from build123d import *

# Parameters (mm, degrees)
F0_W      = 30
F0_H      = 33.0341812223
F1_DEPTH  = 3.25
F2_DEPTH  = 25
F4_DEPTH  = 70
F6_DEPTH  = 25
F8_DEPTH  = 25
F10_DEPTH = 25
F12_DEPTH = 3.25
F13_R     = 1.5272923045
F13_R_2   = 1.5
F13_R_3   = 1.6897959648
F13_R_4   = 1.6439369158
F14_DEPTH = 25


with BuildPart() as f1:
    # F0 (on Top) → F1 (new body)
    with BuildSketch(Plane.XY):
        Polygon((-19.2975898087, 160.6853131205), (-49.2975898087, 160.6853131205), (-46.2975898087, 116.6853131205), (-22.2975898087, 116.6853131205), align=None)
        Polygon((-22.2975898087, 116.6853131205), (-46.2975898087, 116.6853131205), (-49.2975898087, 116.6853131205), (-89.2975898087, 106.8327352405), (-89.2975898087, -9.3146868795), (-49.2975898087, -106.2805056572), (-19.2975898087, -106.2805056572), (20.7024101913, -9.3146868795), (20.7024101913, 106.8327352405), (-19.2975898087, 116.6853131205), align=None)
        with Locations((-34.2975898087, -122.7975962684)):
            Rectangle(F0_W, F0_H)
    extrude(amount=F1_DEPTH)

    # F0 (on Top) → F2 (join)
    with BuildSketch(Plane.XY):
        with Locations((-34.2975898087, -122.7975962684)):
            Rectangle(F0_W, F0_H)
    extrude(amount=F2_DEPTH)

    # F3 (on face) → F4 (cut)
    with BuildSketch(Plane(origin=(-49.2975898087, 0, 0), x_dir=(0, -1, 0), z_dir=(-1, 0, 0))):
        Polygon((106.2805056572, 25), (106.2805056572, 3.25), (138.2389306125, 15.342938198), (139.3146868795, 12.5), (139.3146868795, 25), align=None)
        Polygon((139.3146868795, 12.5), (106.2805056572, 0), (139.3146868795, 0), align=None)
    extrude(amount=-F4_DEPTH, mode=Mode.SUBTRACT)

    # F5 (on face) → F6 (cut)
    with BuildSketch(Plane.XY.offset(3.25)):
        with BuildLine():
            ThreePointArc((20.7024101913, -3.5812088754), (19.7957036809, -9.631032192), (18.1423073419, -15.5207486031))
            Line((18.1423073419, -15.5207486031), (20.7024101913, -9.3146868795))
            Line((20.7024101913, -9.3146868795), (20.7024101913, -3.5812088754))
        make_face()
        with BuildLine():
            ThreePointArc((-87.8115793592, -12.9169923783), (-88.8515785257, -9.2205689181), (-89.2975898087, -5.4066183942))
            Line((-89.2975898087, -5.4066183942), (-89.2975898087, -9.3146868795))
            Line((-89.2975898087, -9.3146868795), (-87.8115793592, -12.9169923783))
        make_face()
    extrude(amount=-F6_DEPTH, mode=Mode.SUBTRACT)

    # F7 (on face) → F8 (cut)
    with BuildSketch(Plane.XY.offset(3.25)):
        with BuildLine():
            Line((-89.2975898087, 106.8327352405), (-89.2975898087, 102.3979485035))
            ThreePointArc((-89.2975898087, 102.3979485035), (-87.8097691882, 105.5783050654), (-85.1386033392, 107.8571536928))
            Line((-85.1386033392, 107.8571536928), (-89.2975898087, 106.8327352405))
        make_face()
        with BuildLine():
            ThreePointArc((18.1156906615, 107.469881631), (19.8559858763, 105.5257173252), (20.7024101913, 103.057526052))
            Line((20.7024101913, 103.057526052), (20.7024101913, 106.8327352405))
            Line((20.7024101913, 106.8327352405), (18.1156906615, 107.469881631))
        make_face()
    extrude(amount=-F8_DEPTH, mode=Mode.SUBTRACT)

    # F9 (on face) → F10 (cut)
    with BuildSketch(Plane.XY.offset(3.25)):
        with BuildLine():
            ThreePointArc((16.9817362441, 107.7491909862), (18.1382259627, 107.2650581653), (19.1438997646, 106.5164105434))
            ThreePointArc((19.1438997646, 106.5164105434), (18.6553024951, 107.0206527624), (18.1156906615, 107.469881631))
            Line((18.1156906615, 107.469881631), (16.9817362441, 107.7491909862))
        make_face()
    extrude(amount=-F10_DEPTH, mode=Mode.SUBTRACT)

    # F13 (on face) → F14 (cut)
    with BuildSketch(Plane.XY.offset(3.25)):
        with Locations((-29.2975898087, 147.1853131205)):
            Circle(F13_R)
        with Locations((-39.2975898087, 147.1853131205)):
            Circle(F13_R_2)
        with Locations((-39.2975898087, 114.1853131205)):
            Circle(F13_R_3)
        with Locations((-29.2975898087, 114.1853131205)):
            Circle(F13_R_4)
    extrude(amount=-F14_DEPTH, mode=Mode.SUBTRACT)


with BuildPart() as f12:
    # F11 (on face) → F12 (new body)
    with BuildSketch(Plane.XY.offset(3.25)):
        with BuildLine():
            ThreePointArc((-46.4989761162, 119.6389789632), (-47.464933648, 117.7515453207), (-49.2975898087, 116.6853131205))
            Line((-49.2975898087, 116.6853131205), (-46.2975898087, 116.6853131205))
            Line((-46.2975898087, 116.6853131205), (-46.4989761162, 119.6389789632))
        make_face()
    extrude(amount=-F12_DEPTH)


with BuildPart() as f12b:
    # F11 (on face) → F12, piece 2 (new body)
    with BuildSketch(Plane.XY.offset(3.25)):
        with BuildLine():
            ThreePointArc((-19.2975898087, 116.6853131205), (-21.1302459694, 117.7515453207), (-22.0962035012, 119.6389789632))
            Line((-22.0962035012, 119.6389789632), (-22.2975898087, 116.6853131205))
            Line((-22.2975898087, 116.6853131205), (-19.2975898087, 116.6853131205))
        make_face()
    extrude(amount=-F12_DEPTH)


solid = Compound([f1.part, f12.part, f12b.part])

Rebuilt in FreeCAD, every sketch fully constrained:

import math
import FreeCAD as App
import Part
import Sketcher
from FreeCAD import Vector

doc = App.newDocument("Part")
body = doc.addObject("PartDesign::Body", "Body")

sketch1 = doc.addObject("Sketcher::SketchObject", "Sketch")
body.addObject(sketch1)
sketch1.AttachmentSupport = (doc.XY_Plane, [""])
sketch1.MapMode = "FlatFace"
sketch1.addGeometry([
    Part.LineSegment(Vector(-19.3, 160.7, 0), Vector(-49.3, 160.7, 0)),
    Part.LineSegment(Vector(-49.3, 160.7, 0), Vector(-46.3, 116.7, 0)),
    Part.LineSegment(Vector(-46.3, 116.7, 0), Vector(-49.3, 116.7, 0)),
    Part.LineSegment(Vector(-49.3, 116.7, 0), Vector(-89.3, 106.8, 0)),
    Part.LineSegment(Vector(-89.3, 106.8, 0), Vector(-89.3, -9.3, 0)),
    Part.LineSegment(Vector(-89.3, -9.3, 0), Vector(-49.3, -106.3, 0)),
    Part.LineSegment(Vector(-49.3, -106.3, 0), Vector(-49.3, -139.3, 0)),
    Part.LineSegment(Vector(-49.3, -139.3, 0), Vector(-19.3, -139.3, 0)),
    Part.LineSegment(Vector(-19.3, -139.3, 0), Vector(-19.3, -106.3, 0)),
    Part.LineSegment(Vector(-19.3, -106.3, 0), Vector(20.7, -9.3, 0)),
    Part.LineSegment(Vector(20.7, -9.3, 0), Vector(20.7, 106.8, 0)),
    Part.LineSegment(Vector(20.7, 106.8, 0), Vector(-19.3, 116.7, 0)),
    Part.LineSegment(Vector(-19.3, 116.7, 0), Vector(-22.3, 116.7, 0)),
    Part.LineSegment(Vector(-22.3, 116.7, 0), Vector(-19.3, 160.7, 0)),
], False)
sketch1.addConstraint([
    Sketcher.Constraint("Coincident", 0, 2, 1, 1),
    Sketcher.Constraint("Coincident", 1, 2, 2, 1),
    Sketcher.Constraint("Coincident", 2, 2, 3, 1),
    Sketcher.Constraint("Coincident", 3, 2, 4, 1),
    Sketcher.Constraint("Coincident", 4, 2, 5, 1),
    Sketcher.Constraint("Coincident", 5, 2, 6, 1),
    Sketcher.Constraint("Coincident", 6, 2, 7, 1),
    Sketcher.Constraint("Coincident", 7, 2, 8, 1),
    Sketcher.Constraint("Coincident", 8, 2, 9, 1),
    Sketcher.Constraint("Coincident", 9, 2, 10, 1),
    Sketcher.Constraint("Coincident", 10, 2, 11, 1),
    Sketcher.Constraint("Coincident", 11, 2, 12, 1),
    Sketcher.Constraint("Coincident", 12, 2, 13, 1),
    Sketcher.Constraint("Coincident", 13, 2, 0, 1),
    Sketcher.Constraint("Horizontal", 0),
    Sketcher.Constraint("Horizontal", 2),
    Sketcher.Constraint("Vertical", 4),
    Sketcher.Constraint("Vertical", 6),
    Sketcher.Constraint("Horizontal", 7),
    Sketcher.Constraint("Vertical", 8),
    Sketcher.Constraint("Vertical", 10),
    Sketcher.Constraint("Horizontal", 12),
    Sketcher.Constraint("Horizontal", 5, 2, 8, 2),
    Sketcher.Constraint("Horizontal", 4, 2, 9, 2),
    Sketcher.Constraint("Horizontal", 3, 2, 10, 2),
    Sketcher.Constraint("Horizontal", 2, 2, 11, 2),
    Sketcher.Constraint("Vertical", 0, 2, 2, 2),
    Sketcher.Constraint("Vertical", 2, 2, 5, 2),
    Sketcher.Constraint("Vertical", 8, 2, 11, 2),
    Sketcher.Constraint("Vertical", 11, 2, 13, 2),
    Sketcher.Constraint("Equal", 2, 12),
    Sketcher.Constraint("Equal", 5, 9),
    Sketcher.Constraint("DistanceX", 0, 2, 0, 1, 30.0),
    Sketcher.Constraint("DistanceX", 2, 2, 2, 1, 3.0),
    Sketcher.Constraint("DistanceY", 1, 2, 0, 2, 44.0),
    Sketcher.Constraint("DistanceX", 3, 2, 2, 2, 40.0),
    Sketcher.Constraint("DistanceY", 4, 2, 2, 2, 126.0),
    Sketcher.Constraint("DistanceY", 6, 2, 4, 2, 130.0),
    Sketcher.Constraint("DistanceY", 6, 2, 6, 1, 33.034181),
    Sketcher.Constraint("Distance", 3, 41.195549),
    Sketcher.Constraint("DistanceX", 0, 2, -1, 1, 49.29759),
    Sketcher.Constraint("DistanceY", -1, 1, 0, 2, 160.685313),
])
pad1 = doc.addObject("PartDesign::Pad", "Pad")
body.addObject(pad1)
pad1.Profile = sketch1
pad1.Length = 3.25

sketch2 = doc.addObject("Sketcher::SketchObject", "Sketch001")
body.addObject(sketch2)
sketch2.AttachmentSupport = (doc.XY_Plane, [""])
sketch2.MapMode = "FlatFace"
sketch2.addGeometry([
    Part.LineSegment(Vector(-49, -106, 0), Vector(-49, -139, 0)),
    Part.LineSegment(Vector(-49, -139, 0), Vector(-19, -139, 0)),
    Part.LineSegment(Vector(-19, -139, 0), Vector(-19, -106, 0)),
    Part.LineSegment(Vector(-19, -106, 0), Vector(-49, -106, 0)),
], False)
sketch2.addConstraint([
    Sketcher.Constraint("Coincident", 0, 2, 1, 1),
    Sketcher.Constraint("Coincident", 1, 2, 2, 1),
    Sketcher.Constraint("Coincident", 2, 2, 3, 1),
    Sketcher.Constraint("Coincident", 3, 2, 0, 1),
    Sketcher.Constraint("Vertical", 0),
    Sketcher.Constraint("Horizontal", 1),
    Sketcher.Constraint("Vertical", 2),
    Sketcher.Constraint("Horizontal", 3),
    Sketcher.Constraint("DistanceX", 1, 1, 1, 2, 30.0),
    Sketcher.Constraint("DistanceY", 0, 2, 0, 1, 33.034181),
    Sketcher.Constraint("DistanceX", 0, 2, -1, 1, 49.29759),
    Sketcher.Constraint("DistanceY", 0, 2, -1, 1, 139.314687),
])
pad2 = doc.addObject("PartDesign::Pad", "Pad001")
body.addObject(pad2)
pad2.Profile = sketch2
pad2.Length = 25

sketch3 = doc.addObject("Sketcher::SketchObject", "Sketch002")
body.addObject(sketch3)
sketch3.AttachmentSupport = (doc.YZ_Plane, [""])
sketch3.MapMode = "FlatFace"
sketch3.AttachmentOffset = App.Placement(Vector(0, 0, -49.29759), App.Rotation())
sketch3.addGeometry([
    Part.LineSegment(Vector(-106.3, 25, 0), Vector(-106.3, 3.2, 0)),
    Part.LineSegment(Vector(-106.3, 3.2, 0), Vector(-138.2, 15.3, 0)),
    Part.LineSegment(Vector(-138.2, 15.3, 0), Vector(-139.3, 12.5, 0)),
    Part.LineSegment(Vector(-139.3, 12.5, 0), Vector(-139.3, 25, 0)),
    Part.LineSegment(Vector(-139.3, 25, 0), Vector(-106.3, 25, 0)),
    Part.LineSegment(Vector(-139.3, 12.5, 0), Vector(-106.3, 0, 0)),
    Part.LineSegment(Vector(-106.3, 0, 0), Vector(-139.3, 0, 0)),
    Part.LineSegment(Vector(-139.3, 0, 0), Vector(-139.3, 12.5, 0)),
], False)
sketch3.addConstraint([
    Sketcher.Constraint("Coincident", 0, 2, 1, 1),
    Sketcher.Constraint("Coincident", 1, 2, 2, 1),
    Sketcher.Constraint("Coincident", 2, 2, 3, 1),
    Sketcher.Constraint("Coincident", 3, 2, 4, 1),
    Sketcher.Constraint("Coincident", 4, 2, 0, 1),
    Sketcher.Constraint("Coincident", 5, 2, 6, 1),
    Sketcher.Constraint("Coincident", 6, 2, 7, 1),
    Sketcher.Constraint("Coincident", 7, 2, 5, 1),
    Sketcher.Constraint("Vertical", 0),
    Sketcher.Constraint("Vertical", 3),
    Sketcher.Constraint("Horizontal", 4),
    Sketcher.Constraint("Horizontal", 6),
    Sketcher.Constraint("Vertical", 7),
    Sketcher.Constraint("Coincident", 7, 2, 2, 2),
    Sketcher.Constraint("PointOnObject", 5, 2, -1),
    Sketcher.Constraint("Perpendicular", 1, 2),
    Sketcher.Constraint("Perpendicular", 2, 5),
    Sketcher.Constraint("Vertical", 4, 2, 5, 2),
    Sketcher.Constraint("Equal", 3, 7),
    Sketcher.Constraint("DistanceY", 3, 1, 3, 2, 12.5),
    Sketcher.Constraint("DistanceY", 0, 2, 0, 1, 21.75),
    Sketcher.Constraint("DistanceX", 4, 1, 4, 2, 33.034181),
    Sketcher.Constraint("DistanceX", 1, 2, -1, 1, 138.238931),
])
pocket1 = doc.addObject("PartDesign::Pocket", "Pocket")
body.addObject(pocket1)
pocket1.Profile = sketch3
pocket1.Length = 70
pocket1.Reversed = True

sketch4 = doc.addObject("Sketcher::SketchObject", "Sketch003")
body.addObject(sketch4)
sketch4.AttachmentSupport = (doc.XY_Plane, [""])
sketch4.MapMode = "FlatFace"
sketch4.AttachmentOffset = App.Placement(Vector(0, 0, 3.25), App.Rotation())
sketch4.addGeometry([
    Part.ArcOfCircle(Part.Circle(Vector(-28.1, 0.6, 0), Vector(0, 0, 1), 49), math.radians(-19.26), math.radians(-4.95)),
    Part.LineSegment(Vector(18.1, -15.5, 0), Vector(20.7, -9.3, 0)),
    Part.LineSegment(Vector(20.7, -9.3, 0), Vector(20.7, -3.6, 0)),
    Part.ArcOfCircle(Part.Circle(Vector(-65, -4.5, 0), Vector(0, 0, 1), 24.4), math.radians(-177.85), math.radians(-159.76)),
    Part.LineSegment(Vector(-89.3, -5.4, 0), Vector(-89.3, -9.3, 0)),
    Part.LineSegment(Vector(-89.3, -9.3, 0), Vector(-87.8, -12.9, 0)),
], False)
sketch4.addConstraint([
    Sketcher.Constraint("Coincident", 0, 1, 1, 1),
    Sketcher.Constraint("Coincident", 1, 2, 2, 1),
    Sketcher.Constraint("Coincident", 2, 2, 0, 2),
    Sketcher.Constraint("Coincident", 3, 1, 4, 1),
    Sketcher.Constraint("Coincident", 4, 2, 5, 1),
    Sketcher.Constraint("Coincident", 5, 2, 3, 2),
    Sketcher.Constraint("Vertical", 2),
    Sketcher.Constraint("Vertical", 4),
    Sketcher.Constraint("Horizontal", 1, 2, 4, 2),
    Sketcher.Constraint("DistanceX", 3, 1, 2, 2, 110.0),
    Sketcher.Constraint("Radius", 0, 49.003971),
    Sketcher.Constraint("Radius", 3, 24.351883),
    Sketcher.Constraint("DistanceY", 2, 1, 2, 2, 5.733478),
    Sketcher.Constraint("DistanceY", 4, 2, 4, 1, 3.908068),
    Sketcher.Constraint("Distance", 1, 6.713369),
    Sketcher.Constraint("Distance", 5, 3.896772),
    Sketcher.Constraint("DistanceY", -1, 1, 0, 3, 0.642979),
    Sketcher.Constraint("DistanceY", 0, 1, -1, 1, 15.520749),
    Sketcher.Constraint("DistanceX", -1, 1, 1, 2, 20.70241),
    Sketcher.Constraint("DistanceX", 5, 2, -1, 1, 87.811579),
])
pocket2 = doc.addObject("PartDesign::Pocket", "Pocket001")
body.addObject(pocket2)
pocket2.Profile = sketch4
pocket2.Length = 25

sketch5 = doc.addObject("Sketcher::SketchObject", "Sketch004")
body.addObject(sketch5)
sketch5.AttachmentSupport = (doc.XY_Plane, [""])
sketch5.MapMode = "FlatFace"
sketch5.AttachmentOffset = App.Placement(Vector(0, 0, 3.25), App.Rotation())
sketch5.addGeometry([
    Part.LineSegment(Vector(-89.3, 106.8, 0), Vector(-89.3, 102.4, 0)),
    Part.ArcOfCircle(Part.Circle(Vector(-81.2, 100.6, 0), Vector(0, 0, 1), 8.3), math.radians(118), math.radians(167)),
    Part.LineSegment(Vector(-85.1, 107.9, 0), Vector(-89.3, 106.8, 0)),
    Part.ArcOfCircle(Part.Circle(Vector(14.2, 102.2, 0), Vector(0, 0, 1), 6.6), math.radians(7), math.radians(53)),
    Part.LineSegment(Vector(20.7, 103.1, 0), Vector(20.7, 106.8, 0)),
    Part.LineSegment(Vector(20.7, 106.8, 0), Vector(18.1, 107.5, 0)),
], False)
sketch5.addConstraint([
    Sketcher.Constraint("Coincident", 0, 2, 1, 2),
    Sketcher.Constraint("Coincident", 1, 1, 2, 1),
    Sketcher.Constraint("Coincident", 2, 2, 0, 1),
    Sketcher.Constraint("Coincident", 3, 1, 4, 1),
    Sketcher.Constraint("Coincident", 4, 2, 5, 1),
    Sketcher.Constraint("Coincident", 5, 2, 3, 2),
    Sketcher.Constraint("Vertical", 0),
    Sketcher.Constraint("Vertical", 4),
    Sketcher.Constraint("Horizontal", 2, 2, 4, 2),
    Sketcher.Constraint("DistanceX", 0, 2, 3, 1, 110.0),
    Sketcher.Constraint("Radius", 1, 8.287232),
    Sketcher.Constraint("Radius", 3, 6.570857),
    Sketcher.Constraint("DistanceX", 1, 1, 1, 3, 3.920999),
    Sketcher.Constraint("DistanceY", 4, 1, 4, 2, 3.775209),
    Sketcher.Constraint("DistanceY", 3, 3, 0, 2, 0.195401),
    Sketcher.Constraint("DistanceY", 0, 2, 0, 1, 4.434787),
    Sketcher.Constraint("DistanceX", 0, 2, -1, 1, 89.29759),
    Sketcher.Constraint("DistanceY", -1, 1, 0, 2, 102.397949),
    Sketcher.Constraint("DistanceX", -1, 1, 5, 2, 18.115691),
    Sketcher.Constraint("DistanceX", 1, 3, 3, 3, 95.405018),
])
pocket3 = doc.addObject("PartDesign::Pocket", "Pocket002")
body.addObject(pocket3)
pocket3.Profile = sketch5
pocket3.Length = 25

sketch6 = doc.addObject("Sketcher::SketchObject", "Sketch005")
body.addObject(sketch6)
sketch6.AttachmentSupport = (doc.XY_Plane, [""])
sketch6.MapMode = "FlatFace"
sketch6.AttachmentOffset = App.Placement(Vector(0, 0, 3.25), App.Rotation())
sketch6.addGeometry([
    Part.ArcOfCircle(Part.Circle(Vector(15.6, 102.8, 0), Vector(0, 0, 1), 5.2), math.radians(46), math.radians(74)),
    Part.ArcOfCircle(Part.Circle(Vector(14.2, 102.2, 0), Vector(0, 0, 1), 6.6), math.radians(41.03), math.radians(53.29)),
    Part.LineSegment(Vector(18.1, 107.5, 0), Vector(17, 107.7, 0)),
], False)
sketch6.addConstraint([
    Sketcher.Constraint("Coincident", 0, 1, 1, 1),
    Sketcher.Constraint("Coincident", 1, 2, 2, 1),
    Sketcher.Constraint("Coincident", 2, 2, 0, 2),
    Sketcher.Constraint("Radius", 0, 5.162266),
    Sketcher.Constraint("Radius", 1, 6.570857),
    Sketcher.Constraint("DistanceX", -1, 1, 0, 1, 19.1439),
    Sketcher.Constraint("DistanceX", 1, 3, 0, 3, 1.393899),
    Sketcher.Constraint("DistanceY", -1, 1, 0, 3, 102.780508),
    Sketcher.Constraint("DistanceY", -1, 1, 0, 1, 106.516411),
    Sketcher.Constraint("DistanceX", -1, 1, 1, 2, 18.115691),
    Sketcher.Constraint("DistanceY", -1, 1, 2, 2, 107.749191),
])
pocket4 = doc.addObject("PartDesign::Pocket", "Pocket003")
body.addObject(pocket4)
pocket4.Profile = sketch6
pocket4.Length = 25

sketch7 = doc.addObject("Sketcher::SketchObject", "Sketch006")
body.addObject(sketch7)
sketch7.AttachmentSupport = (doc.XY_Plane, [""])
sketch7.MapMode = "FlatFace"
sketch7.AttachmentOffset = App.Placement(Vector(0, 0, 3.25), App.Rotation())
sketch7.addGeometry([
    Part.Circle(Vector(-29.3, 147.2, 0), Vector(0, 0, 1), 1.5),
    Part.Circle(Vector(-39.3, 147.2, 0), Vector(0, 0, 1), 1.5),
    Part.Circle(Vector(-39.3, 114.2, 0), Vector(0, 0, 1), 1.7),
    Part.Circle(Vector(-29.3, 114.2, 0), Vector(0, 0, 1), 1.6),
], False)
sketch7.addConstraint([
    Sketcher.Constraint("Horizontal", 0, 3, 1, 3),
    Sketcher.Constraint("Horizontal", 2, 3, 3, 3),
    Sketcher.Constraint("Vertical", 1, 3, 2, 3),
    Sketcher.Constraint("Vertical", 0, 3, 3, 3),
    Sketcher.Constraint("Diameter", 1, 3.0),
    Sketcher.Constraint("DistanceX", 1, 3, 0, 3, 10.0),
    Sketcher.Constraint("DistanceY", 2, 3, 1, 3, 33.0),
    Sketcher.Constraint("Diameter", 2, 3.379592),
    Sketcher.Constraint("Diameter", 0, 3.054585),
    Sketcher.Constraint("Diameter", 3, 3.287874),
    Sketcher.Constraint("DistanceX", 0, 3, -1, 1, 29.29759),
    Sketcher.Constraint("DistanceY", -1, 1, 0, 3, 147.185313),
])
pocket5 = doc.addObject("PartDesign::Pocket", "Pocket004")
body.addObject(pocket5)
pocket5.Profile = sketch7
pocket5.Length = 25
body2 = doc.addObject("PartDesign::Body", "Body001")

sketch8 = doc.addObject("Sketcher::SketchObject", "Sketch007")
body2.addObject(sketch8)
sketch8.AttachmentSupport = (doc.getObject("XY_Plane001"), [""])
sketch8.MapMode = "FlatFace"
sketch8.AttachmentOffset = App.Placement(Vector(0, 0, 3.25), App.Rotation())
sketch8.addGeometry([
    Part.ArcOfCircle(Part.Circle(Vector(-50.2, 120.3, 0), Vector(0, 0, 1), 3.8), math.radians(-76), math.radians(-11)),
    Part.LineSegment(Vector(-49.3, 116.7, 0), Vector(-46.3, 116.7, 0)),
    Part.LineSegment(Vector(-46.3, 116.7, 0), Vector(-46.5, 119.6, 0)),
], False)
sketch8.addConstraint([
    Sketcher.Constraint("Coincident", 0, 1, 1, 1),
    Sketcher.Constraint("Coincident", 1, 2, 2, 1),
    Sketcher.Constraint("Coincident", 2, 2, 0, 2),
    Sketcher.Constraint("Horizontal", 1),
    Sketcher.Constraint("DistanceX", 1, 1, 1, 2, 3.0),
    Sketcher.Constraint("Radius", 0, 3.765187),
    Sketcher.Constraint("DistanceY", -1, 1, 0, 3, 120.34123),
    Sketcher.Constraint("DistanceX", 0, 1, -1, 1, 49.29759),
    Sketcher.Constraint("DistanceY", -1, 1, 2, 2, 119.638979),
    Sketcher.Constraint("Distance", 2, 2.960523),
])
pad3 = doc.addObject("PartDesign::Pad", "Pad002")
body2.addObject(pad3)
pad3.Profile = sketch8
pad3.Length = 3.25
pad3.Reversed = True
body3 = doc.addObject("PartDesign::Body", "Body002")

sketch9 = doc.addObject("Sketcher::SketchObject", "Sketch008")
body3.addObject(sketch9)
sketch9.AttachmentSupport = (doc.getObject("XY_Plane002"), [""])
sketch9.MapMode = "FlatFace"
sketch9.AttachmentOffset = App.Placement(Vector(0, 0, 3.25), App.Rotation())
sketch9.addGeometry([
    Part.ArcOfCircle(Part.Circle(Vector(-18.4, 120.3, 0), Vector(0, 0, 1), 3.8), math.radians(-169), math.radians(-104)),
    Part.LineSegment(Vector(-22.1, 119.6, 0), Vector(-22.3, 116.7, 0)),
    Part.LineSegment(Vector(-22.3, 116.7, 0), Vector(-19.3, 116.7, 0)),
], False)
sketch9.addConstraint([
    Sketcher.Constraint("Coincident", 0, 1, 1, 1),
    Sketcher.Constraint("Coincident", 1, 2, 2, 1),
    Sketcher.Constraint("Coincident", 2, 2, 0, 2),
    Sketcher.Constraint("Horizontal", 2),
    Sketcher.Constraint("DistanceX", 2, 1, 2, 2, 3.0),
    Sketcher.Constraint("Radius", 0, 3.765187),
    Sketcher.Constraint("DistanceY", -1, 1, 0, 3, 120.34123),
    Sketcher.Constraint("DistanceY", -1, 1, 0, 1, 119.638979),
    Sketcher.Constraint("DistanceX", 1, 2, -1, 1, 22.29759),
    Sketcher.Constraint("Distance", 1, 2.960523),
])
pad4 = doc.addObject("PartDesign::Pad", "Pad003")
body3.addObject(pad4)
pad4.Profile = sketch9
pad4.Length = 3.25
pad4.Reversed = True

doc.recompute()
